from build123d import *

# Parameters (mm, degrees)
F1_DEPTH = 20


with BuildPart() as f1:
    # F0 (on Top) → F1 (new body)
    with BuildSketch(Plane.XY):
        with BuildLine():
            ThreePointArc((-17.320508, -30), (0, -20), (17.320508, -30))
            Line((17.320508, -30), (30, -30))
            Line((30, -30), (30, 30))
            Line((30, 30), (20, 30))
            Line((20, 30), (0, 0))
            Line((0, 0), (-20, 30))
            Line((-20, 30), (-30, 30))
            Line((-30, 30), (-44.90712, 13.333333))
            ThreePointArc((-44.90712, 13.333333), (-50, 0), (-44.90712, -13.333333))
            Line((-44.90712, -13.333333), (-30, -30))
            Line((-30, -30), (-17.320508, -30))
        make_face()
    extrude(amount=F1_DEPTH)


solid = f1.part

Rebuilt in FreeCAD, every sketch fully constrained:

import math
import FreeCAD as App
import Part
import Sketcher

V = App.Vector
Q = App.Units.Quantity

doc = App.newDocument("Part")
body = doc.addObject("PartDesign::Body", "Body")

# Sketch on XY plane
sketch1 = doc.addObject("Sketcher::SketchObject", "Sketch")
body.addObject(sketch1)
sketch1.AttachmentSupport = (doc.XY_Plane, [""])
sketch1.MapMode = "FlatFace"
sketch1.addGeometry(Part.ArcOfCircle(Part.Circle(V(0, -40, 0), V(0, 0, 1), 20), math.radians(30), math.radians(150)), False)
sketch1.addGeometry(Part.LineSegment(V(17, -30, 0), V(30, -30, 0)), False)
sketch1.addGeometry(Part.LineSegment(V(30, -30, 0), V(30, 30, 0)), False)
sketch1.addGeometry(Part.LineSegment(V(30, 30, 0), V(20, 30, 0)), False)
sketch1.addGeometry(Part.LineSegment(V(20, 30, 0), V(0, 0, 0)), False)
sketch1.addGeometry(Part.LineSegment(V(0, 0, 0), V(-20, 30, 0)), False)
sketch1.addGeometry(Part.LineSegment(V(-20, 30, 0), V(-30, 30, 0)), False)
sketch1.addGeometry(Part.LineSegment(V(-30, 30, 0), V(-45, 13, 0)), False)
sketch1.addGeometry(Part.ArcOfCircle(Part.Circle(V(-30, 0, 0), V(0, 0, 1), 20), math.radians(138), math.radians(222)), False)
sketch1.addGeometry(Part.LineSegment(V(-45, -13, 0), V(-30, -30, 0)), False)
sketch1.addGeometry(Part.LineSegment(V(-30, -30, 0), V(-17, -30, 0)), False)
sketch1.addConstraint(Sketcher.Constraint("Coincident", 0, 1, 1, 1))
sketch1.addConstraint(Sketcher.Constraint("Coincident", 1, 2, 2, 1))
sketch1.addConstraint(Sketcher.Constraint("Coincident", 2, 2, 3, 1))
sketch1.addConstraint(Sketcher.Constraint("Coincident", 3, 2, 4, 1))
sketch1.addConstraint(Sketcher.Constraint("Coincident", 4, 2, 5, 1))
sketch1.addConstraint(Sketcher.Constraint("Coincident", 5, 2, 6, 1))
sketch1.addConstraint(Sketcher.Constraint("Coincident", 6, 2, 7, 1))
sketch1.addConstraint(Sketcher.Constraint("Tangent", 7, 2, 8, 1))
sketch1.addConstraint(Sketcher.Constraint("Tangent", 8, 2, 9, 1))
sketch1.addConstraint(Sketcher.Constraint("Coincident", 9, 2, 10, 1))
sketch1.addConstraint(Sketcher.Constraint("Coincident", 10, 2, 0, 2))
sketch1.addConstraint(Sketcher.Constraint("Horizontal", 1))
sketch1.addConstraint(Sketcher.Constraint("Vertical", 2))
sketch1.addConstraint(Sketcher.Constraint("Horizontal", 3))
sketch1.addConstraint(Sketcher.Constraint("Horizontal", 6))
sketch1.addConstraint(Sketcher.Constraint("Horizontal", 10))
sketch1.addConstraint(Sketcher.Constraint("Coincident", 4, 2, -1, 1))
sketch1.addConstraint(Sketcher.Constraint("Equal", 0, 8))
sketch1.addConstraint(Sketcher.Constraint("Symmetric", 1, 2, 6, 2, -1, 1))
sketch1.addConstraint(Sketcher.Constraint("Symmetric", 2, 2, 9, 2, -1, 1))
sketch1.addConstraint(Sketcher.Constraint("Symmetric", 3, 2, 5, 2, -2))
sketch1.addConstraint(Sketcher.Constraint("PointOnObject", 0, 3, -2))
sketch1.addConstraint(Sketcher.Constraint("PointOnObject", 8, 3, -1))
sketch1.addConstraint(Sketcher.Constraint("Vertical", 8, 3, 6, 2))
sketch1.addConstraint(Sketcher.Constraint("Radius", 0, Q("20 mm")))
sketch1.addConstraint(Sketcher.Constraint("DistanceX", 3, 2, 3, 1, Q("10 mm")))
sketch1.addConstraint(Sketcher.Constraint("DistanceY", 2, 1, 2, 2, Q("60 mm")))
sketch1.addConstraint(Sketcher.Constraint("DistanceY", 0, 3, -1, 1, Q("40 mm")))
sketch1.addConstraint(Sketcher.Constraint("DistanceX", 8, 3, -1, 1, Q("30 mm")))
pad1 = doc.addObject("PartDesign::Pad", "Pad")
body.addObject(pad1)
pad1.Profile = sketch1
pad1.Length = 20

doc.recompute()
